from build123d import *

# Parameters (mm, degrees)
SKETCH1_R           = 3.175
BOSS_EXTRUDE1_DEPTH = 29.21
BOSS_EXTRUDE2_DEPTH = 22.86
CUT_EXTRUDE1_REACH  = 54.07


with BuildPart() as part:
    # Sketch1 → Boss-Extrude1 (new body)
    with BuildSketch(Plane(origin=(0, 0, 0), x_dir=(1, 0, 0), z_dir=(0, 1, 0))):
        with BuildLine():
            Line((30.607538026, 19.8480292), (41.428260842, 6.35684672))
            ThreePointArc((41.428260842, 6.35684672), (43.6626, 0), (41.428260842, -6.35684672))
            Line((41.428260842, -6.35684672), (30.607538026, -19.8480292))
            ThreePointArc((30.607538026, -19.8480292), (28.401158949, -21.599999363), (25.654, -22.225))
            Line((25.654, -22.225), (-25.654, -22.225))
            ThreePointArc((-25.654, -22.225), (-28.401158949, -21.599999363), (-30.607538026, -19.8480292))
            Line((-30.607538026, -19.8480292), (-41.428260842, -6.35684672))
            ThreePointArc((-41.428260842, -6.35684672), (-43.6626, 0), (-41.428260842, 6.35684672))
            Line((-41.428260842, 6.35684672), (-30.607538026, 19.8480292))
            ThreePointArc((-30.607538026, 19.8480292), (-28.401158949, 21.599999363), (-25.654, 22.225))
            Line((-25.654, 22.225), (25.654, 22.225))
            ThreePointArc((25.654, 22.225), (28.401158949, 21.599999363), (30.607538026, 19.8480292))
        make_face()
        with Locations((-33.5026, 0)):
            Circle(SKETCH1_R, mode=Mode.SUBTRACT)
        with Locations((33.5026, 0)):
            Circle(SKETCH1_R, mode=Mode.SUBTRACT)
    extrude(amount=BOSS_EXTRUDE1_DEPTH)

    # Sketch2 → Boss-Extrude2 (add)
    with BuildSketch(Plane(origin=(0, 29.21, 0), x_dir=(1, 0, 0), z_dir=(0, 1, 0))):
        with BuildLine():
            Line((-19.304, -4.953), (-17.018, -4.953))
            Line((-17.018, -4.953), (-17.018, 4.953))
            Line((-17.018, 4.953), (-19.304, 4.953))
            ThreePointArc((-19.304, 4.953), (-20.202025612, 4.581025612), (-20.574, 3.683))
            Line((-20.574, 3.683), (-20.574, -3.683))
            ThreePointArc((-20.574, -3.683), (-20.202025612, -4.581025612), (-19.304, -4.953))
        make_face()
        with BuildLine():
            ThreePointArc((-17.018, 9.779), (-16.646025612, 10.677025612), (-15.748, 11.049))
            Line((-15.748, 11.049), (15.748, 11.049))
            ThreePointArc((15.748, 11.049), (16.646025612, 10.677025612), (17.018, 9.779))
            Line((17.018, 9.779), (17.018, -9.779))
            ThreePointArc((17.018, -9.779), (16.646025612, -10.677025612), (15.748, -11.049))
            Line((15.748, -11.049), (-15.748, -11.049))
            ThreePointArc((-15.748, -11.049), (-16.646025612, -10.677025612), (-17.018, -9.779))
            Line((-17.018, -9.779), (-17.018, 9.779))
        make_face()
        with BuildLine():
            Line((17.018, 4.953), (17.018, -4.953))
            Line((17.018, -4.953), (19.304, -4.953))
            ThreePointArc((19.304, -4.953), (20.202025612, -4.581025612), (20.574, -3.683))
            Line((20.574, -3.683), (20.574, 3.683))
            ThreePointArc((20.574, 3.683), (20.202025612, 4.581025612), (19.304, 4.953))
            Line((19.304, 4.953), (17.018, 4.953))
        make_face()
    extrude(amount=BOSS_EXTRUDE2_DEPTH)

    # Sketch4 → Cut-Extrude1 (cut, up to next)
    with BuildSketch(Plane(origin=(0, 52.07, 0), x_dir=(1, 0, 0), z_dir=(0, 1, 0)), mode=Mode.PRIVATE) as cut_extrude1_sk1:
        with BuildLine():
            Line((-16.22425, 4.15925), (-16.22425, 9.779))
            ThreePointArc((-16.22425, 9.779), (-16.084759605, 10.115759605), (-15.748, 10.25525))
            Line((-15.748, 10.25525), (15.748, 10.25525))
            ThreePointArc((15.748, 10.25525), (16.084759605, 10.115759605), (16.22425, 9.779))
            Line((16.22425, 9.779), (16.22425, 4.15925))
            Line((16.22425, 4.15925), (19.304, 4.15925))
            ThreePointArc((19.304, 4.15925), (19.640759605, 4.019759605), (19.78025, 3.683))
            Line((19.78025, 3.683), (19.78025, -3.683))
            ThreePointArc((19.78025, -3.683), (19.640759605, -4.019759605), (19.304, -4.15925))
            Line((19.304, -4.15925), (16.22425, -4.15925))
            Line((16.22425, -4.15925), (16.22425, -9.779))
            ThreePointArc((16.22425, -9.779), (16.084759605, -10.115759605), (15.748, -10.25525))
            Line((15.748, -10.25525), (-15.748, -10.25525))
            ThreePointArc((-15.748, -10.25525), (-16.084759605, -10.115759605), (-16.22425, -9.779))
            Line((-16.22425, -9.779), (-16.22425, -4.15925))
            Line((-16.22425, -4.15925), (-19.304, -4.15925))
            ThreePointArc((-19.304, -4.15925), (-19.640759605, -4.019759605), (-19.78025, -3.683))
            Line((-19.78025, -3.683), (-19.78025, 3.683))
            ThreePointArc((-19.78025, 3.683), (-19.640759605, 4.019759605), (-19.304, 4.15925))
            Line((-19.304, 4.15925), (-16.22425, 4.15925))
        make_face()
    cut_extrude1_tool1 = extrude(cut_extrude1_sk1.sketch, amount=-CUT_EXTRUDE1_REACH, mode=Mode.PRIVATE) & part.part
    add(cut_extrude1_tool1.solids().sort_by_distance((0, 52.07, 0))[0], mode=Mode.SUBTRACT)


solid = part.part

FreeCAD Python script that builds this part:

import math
import FreeCAD as App
import Part
import Sketcher
Q = App.Units.Quantity

doc = App.newDocument("Part")
body = doc.addObject("PartDesign::Body", "Body")

# Sketch on XZ plane
sketch1 = body.newObject("Sketcher::SketchObject", "Sketch")
sketch1.AttachmentSupport = (doc.getObject("XZ_Plane"), [""])
sketch1.MapMode = "FlatFace"
sketch1.addGeometry(Part.LineSegment(App.Vector(41.428261, -6.356847, 0), App.Vector(30.607538, -19.848029, 0)), False)
sketch1.addGeometry(Part.ArcOfCircle(Part.Circle(App.Vector(25.654, -15.875, 0), App.Vector(0, 0, 1), 6.35), math.radians(-90), math.radians(-38.731666)), False)
sketch1.addGeometry(Part.LineSegment(App.Vector(25.654, -22.225, 0), App.Vector(-25.654, -22.225, 0)), False)
sketch1.addGeometry(Part.ArcOfCircle(Part.Circle(App.Vector(-25.654, -15.875, 0), App.Vector(0, 0, 1), 6.35), math.radians(-141.268334), math.radians(-90)), False)
sketch1.addGeometry(Part.LineSegment(App.Vector(-30.607538, -19.848029, 0), App.Vector(-41.428261, -6.356847, 0)), False)
sketch1.addGeometry(Part.ArcOfCircle(Part.Circle(App.Vector(-33.5026, 0, 0), App.Vector(0, 0, 1), 10.16), math.radians(141.268334), math.radians(218.731666)), False)
sketch1.addGeometry(Part.LineSegment(App.Vector(-41.428261, 6.356847, 0), App.Vector(-30.607538, 19.848029, 0)), False)
sketch1.addGeometry(Part.ArcOfCircle(Part.Circle(App.Vector(-25.654, 15.875, 0), App.Vector(0, 0, 1), 6.35), math.radians(90), math.radians(141.268334)), False)
sketch1.addGeometry(Part.LineSegment(App.Vector(-25.654, 22.225, 0), App.Vector(25.654, 22.225, 0)), False)
sketch1.addGeometry(Part.ArcOfCircle(Part.Circle(App.Vector(25.654, 15.875, 0), App.Vector(0, 0, 1), 6.35), math.radians(38.731666), math.radians(90)), False)
sketch1.addGeometry(Part.LineSegment(App.Vector(30.607538, 19.848029, 0), App.Vector(41.428261, 6.356847, 0)), False)
sketch1.addGeometry(Part.ArcOfCircle(Part.Circle(App.Vector(33.5026, 0, 0), App.Vector(0, 0, 1), 10.16), math.radians(-38.731666), math.radians(38.731666)), False)
sketch1.addGeometry(Part.Circle(App.Vector(33.5026, 0, 0), App.Vector(0, 0, 1), 3.175), False)
sketch1.addGeometry(Part.Circle(App.Vector(-33.5026, 0, 0), App.Vector(0, 0, 1), 3.175), False)
sketch1.addConstraint(Sketcher.Constraint("Tangent", 0, 2, 1, 2))
sketch1.addConstraint(Sketcher.Constraint("Tangent", 1, 1, 2, 1))
sketch1.addConstraint(Sketcher.Constraint("Tangent", 2, 2, 3, 2))
sketch1.addConstraint(Sketcher.Constraint("Tangent", 3, 1, 4, 1))
sketch1.addConstraint(Sketcher.Constraint("Tangent", 4, 2, 5, 2))
sketch1.addConstraint(Sketcher.Constraint("Tangent", 5, 1, 6, 1))
sketch1.addConstraint(Sketcher.Constraint("Tangent", 6, 2, 7, 2))
sketch1.addConstraint(Sketcher.Constraint("Tangent", 7, 1, 8, 1))
sketch1.addConstraint(Sketcher.Constraint("Tangent", 8, 2, 9, 2))
sketch1.addConstraint(Sketcher.Constraint("Tangent", 9, 1, 10, 1))
sketch1.addConstraint(Sketcher.Constraint("Tangent", 10, 2, 11, 2))
sketch1.addConstraint(Sketcher.Constraint("Tangent", 11, 1, 0, 1))
sketch1.addConstraint(Sketcher.Constraint("Horizontal", 2))
sketch1.addConstraint(Sketcher.Constraint("Horizontal", 8))
sketch1.addConstraint(Sketcher.Constraint("Coincident", 12, 3, 11, 3))
sketch1.addConstraint(Sketcher.Constraint("Coincident", 13, 3, 5, 3))
sketch1.addConstraint(Sketcher.Constraint("Equal", 1, 3))
sketch1.addConstraint(Sketcher.Constraint("Equal", 3, 7))
sketch1.addConstraint(Sketcher.Constraint("Equal", 7, 9))
sketch1.addConstraint(Sketcher.Constraint("Equal", 5, 11))
sketch1.addConstraint(Sketcher.Constraint("Equal", 12, 13))
sketch1.addConstraint(Sketcher.Constraint("Symmetric", 1, 3, 7, 3, -1, 1))
sketch1.addConstraint(Sketcher.Constraint("Symmetric", 5, 3, 11, 3, -1, 1))
sketch1.addConstraint(Sketcher.Constraint("Symmetric", 0, 2, 3, 1, -2))
sketch1.addConstraint(Sketcher.Constraint("Parallel", 4, 10))
sketch1.addConstraint(Sketcher.Constraint("Radius", 5, Q("0.4 in")))
sketch1.addConstraint(Sketcher.Constraint("Diameter", 12, Q("0.25 in")))
sketch1.addConstraint(Sketcher.Constraint("Radius", 1, Q("0.25 in")))
sketch1.addConstraint(Sketcher.Constraint("DistanceX", 2, 2, 2, 1, Q("2.02 in")))
sketch1.addConstraint(Sketcher.Constraint("DistanceY", 1, 1, 9, 3, Q("1.5 in")))
sketch1.addConstraint(Sketcher.Constraint("DistanceX", 5, 3, -1, 1, Q("1.319 in")))
pad1 = body.newObject("PartDesign::Pad", "Pad")
pad1.Profile = sketch1
pad1.Length = Q("1.15 in")
pad1.Reversed = True

# Sketch on XZ plane
sketch2 = body.newObject("Sketcher::SketchObject", "Sketch001")
sketch2.AttachmentSupport = (doc.getObject("XZ_Plane"), [""])
sketch2.MapMode = "FlatFace"
sketch2.AttachmentOffset = App.Placement(App.Vector(0, 0, -1.15 * 25.4), App.Rotation())
sketch2.addGeometry(Part.LineSegment(App.Vector(-19.304, 4.953, 0), App.Vector(-17.018, 4.953, 0)), False)
sketch2.addGeometry(Part.LineSegment(App.Vector(-17.018, 4.953, 0), App.Vector(-17.018, 9.779, 0)), False)
sketch2.addGeometry(Part.ArcOfCircle(Part.Circle(App.Vector(-15.748, 9.779, 0), App.Vector(0, 0, 1), 1.27), math.radians(90), math.radians(180)), False)
sketch2.addGeometry(Part.LineSegment(App.Vector(-15.748, 11.049, 0), App.Vector(15.748, 11.049, 0)), False)
sketch2.addGeometry(Part.ArcOfCircle(Part.Circle(App.Vector(15.748, 9.779, 0), App.Vector(0, 0, 1), 1.27), math.radians(0), math.radians(90)), False)
sketch2.addGeometry(Part.LineSegment(App.Vector(17.018, 9.779, 0), App.Vector(17.018, 4.953, 0)), False)
sketch2.addGeometry(Part.LineSegment(App.Vector(17.018, 4.953, 0), App.Vector(19.304, 4.953, 0)), False)
sketch2.addGeometry(Part.ArcOfCircle(Part.Circle(App.Vector(19.304, 3.683, 0), App.Vector(0, 0, 1), 1.27), math.radians(0), math.radians(90)), False)
sketch2.addGeometry(Part.LineSegment(App.Vector(20.574, 3.683, 0), App.Vector(20.574, -3.683, 0)), False)
sketch2.addGeometry(Part.ArcOfCircle(Part.Circle(App.Vector(19.304, -3.683, 0), App.Vector(0, 0, 1), 1.27), math.radians(-90), math.radians(0)), False)
sketch2.addGeometry(Part.LineSegment(App.Vector(19.304, -4.953, 0), App.Vector(17.018, -4.953, 0)), False)
sketch2.addGeometry(Part.LineSegment(App.Vector(17.018, -4.953, 0), App.Vector(17.018, -9.779, 0)), False)
sketch2.addGeometry(Part.ArcOfCircle(Part.Circle(App.Vector(15.748, -9.779, 0), App.Vector(0, 0, 1), 1.27), math.radians(-90), math.radians(0)), False)
sketch2.addGeometry(Part.LineSegment(App.Vector(15.748, -11.049, 0), App.Vector(-15.748, -11.049, 0)), False)
sketch2.addGeometry(Part.ArcOfCircle(Part.Circle(App.Vector(-15.748, -9.779, 0), App.Vector(0, 0, 1), 1.27), math.radians(180), math.radians(270)), False)
sketch2.addGeometry(Part.LineSegment(App.Vector(-17.018, -9.779, 0), App.Vector(-17.018, -4.953, 0)), False)
sketch2.addGeometry(Part.LineSegment(App.Vector(-17.018, -4.953, 0), App.Vector(-19.304, -4.953, 0)), False)
sketch2.addGeometry(Part.ArcOfCircle(Part.Circle(App.Vector(-19.304, -3.683, 0), App.Vector(0, 0, 1), 1.27), math.radians(180), math.radians(270)), False)
sketch2.addGeometry(Part.LineSegment(App.Vector(-20.574, -3.683, 0), App.Vector(-20.574, 3.683, 0)), False)
sketch2.addGeometry(Part.ArcOfCircle(Part.Circle(App.Vector(-19.304, 3.683, 0), App.Vector(0, 0, 1), 1.27), math.radians(90), math.radians(180)), False)
sketch2.addConstraint(Sketcher.Constraint("Coincident", 0, 2, 1, 1))
sketch2.addConstraint(Sketcher.Constraint("Tangent", 1, 2, 2, 2))
sketch2.addConstraint(Sketcher.Constraint("Tangent", 2, 1, 3, 1))
sketch2.addConstraint(Sketcher.Constraint("Tangent", 3, 2, 4, 2))
sketch2.addConstraint(Sketcher.Constraint("Tangent", 4, 1, 5, 1))
sketch2.addConstraint(Sketcher.Constraint("Coincident", 5, 2, 6, 1))
sketch2.addConstraint(Sketcher.Constraint("Tangent", 6, 2, 7, 2))
sketch2.addConstraint(Sketcher.Constraint("Tangent", 7, 1, 8, 1))
sketch2.addConstraint(Sketcher.Constraint("Tangent", 8, 2, 9, 2))
sketch2.addConstraint(Sketcher.Constraint("Tangent", 9, 1, 10, 1))
sketch2.addConstraint(Sketcher.Constraint("Coincident", 10, 2, 11, 1))
sketch2.addConstraint(Sketcher.Constraint("Tangent", 11, 2, 12, 2))
sketch2.addConstraint(Sketcher.Constraint("Tangent", 12, 1, 13, 1))
sketch2.addConstraint(Sketcher.Constraint("Tangent", 13, 2, 14, 2))
sketch2.addConstraint(Sketcher.Constraint("Tangent", 14, 1, 15, 1))
sketch2.addConstraint(Sketcher.Constraint("Coincident", 15, 2, 16, 1))
sketch2.addConstraint(Sketcher.Constraint("Tangent", 16, 2, 17, 2))
sketch2.addConstraint(Sketcher.Constraint("Tangent", 17, 1, 18, 1))
sketch2.addConstraint(Sketcher.Constraint("Tangent", 18, 2, 19, 2))
sketch2.addConstraint(Sketcher.Constraint("Tangent", 19, 1, 0, 1))
sketch2.addConstraint(Sketcher.Constraint("Horizontal", 0))
sketch2.addConstraint(Sketcher.Constraint("Vertical", 1))
sketch2.addConstraint(Sketcher.Constraint("Horizontal", 3))
sketch2.addConstraint(Sketcher.Constraint("Vertical", 5))
sketch2.addConstraint(Sketcher.Constraint("Horizontal", 6))
sketch2.addConstraint(Sketcher.Constraint("Vertical", 8))
sketch2.addConstraint(Sketcher.Constraint("Horizontal", 10))
sketch2.addConstraint(Sketcher.Constraint("Vertical", 11))
sketch2.addConstraint(Sketcher.Constraint("Horizontal", 13))
sketch2.addConstraint(Sketcher.Constraint("Vertical", 15))
sketch2.addConstraint(Sketcher.Constraint("Horizontal", 16))
sketch2.addConstraint(Sketcher.Constraint("Vertical", 18))
sketch2.addConstraint(Sketcher.Constraint("Equal", 2, 4))
sketch2.addConstraint(Sketcher.Constraint("Equal", 4, 7))
sketch2.addConstraint(Sketcher.Constraint("Equal", 7, 9))
sketch2.addConstraint(Sketcher.Constraint("Equal", 9, 12))
sketch2.addConstraint(Sketcher.Constraint("Equal", 12, 14))
sketch2.addConstraint(Sketcher.Constraint("Equal", 14, 17))
sketch2.addConstraint(Sketcher.Constraint("Equal", 17, 19))
sketch2.addConstraint(Sketcher.Constraint("Symmetric", 2, 3, 12, 3, -1, 1))
sketch2.addConstraint(Sketcher.Constraint("Symmetric", 7, 3, 17, 3, -1, 1))
sketch2.addConstraint(Sketcher.Constraint("Symmetric", 0, 2, 5, 2, -2))
sketch2.addConstraint(Sketcher.Constraint("Symmetric", 10, 2, 15, 2, -2))
sketch2.addConstraint(Sketcher.Constraint("Radius", 2, Q("0.05 in")))
sketch2.addConstraint(Sketcher.Constraint("DistanceX", 0, 1, 0, 2, Q("0.09 in")))
sketch2.addConstraint(Sketcher.Constraint("DistanceX", 3, 1, 3, 2, Q("1.24 in")))
sketch2.addConstraint(Sketcher.Constraint("DistanceY", 1, 1, 1, 2, Q("0.19 in")))
sketch2.addConstraint(Sketcher.Constraint("DistanceY", 8, 2, 8, 1, Q("0.29 in")))
pad2 = body.newObject("PartDesign::Pad", "Pad001")
pad2.Profile = sketch2
pad2.Length = Q("0.9 in")
pad2.Reversed = True

# Sketch on XZ plane
sketch3 = body.newObject("Sketcher::SketchObject", "Sketch002")
sketch3.AttachmentSupport = (doc.getObject("XZ_Plane"), [""])
sketch3.MapMode = "FlatFace"
sketch3.AttachmentOffset = App.Placement(App.Vector(0, 0, -2.05 * 25.4), App.Rotation())
sketch3.addGeometry(Part.LineSegment(App.Vector(-16.22425, -9.779, 0), App.Vector(-16.22425, -4.15925, 0)), False)
sketch3.addGeometry(Part.LineSegment(App.Vector(-16.22425, -4.15925, 0), App.Vector(-19.304, -4.15925, 0)), False)
sketch3.addGeometry(Part.ArcOfCircle(Part.Circle(App.Vector(-19.304, -3.683, 0), App.Vector(0, 0, 1), 0.47625), math.radians(180), math.radians(270)), False)
sketch3.addGeometry(Part.LineSegment(App.Vector(-19.78025, -3.683, 0), App.Vector(-19.78025, 3.683, 0)), False)
sketch3.addGeometry(Part.ArcOfCircle(Part.Circle(App.Vector(-19.304, 3.683, 0), App.Vector(0, 0, 1), 0.47625), math.radians(90), math.radians(180)), False)
sketch3.addGeometry(Part.LineSegment(App.Vector(-19.304, 4.15925, 0), App.Vector(-16.22425, 4.15925, 0)), False)
sketch3.addGeometry(Part.LineSegment(App.Vector(-16.22425, 4.15925, 0), App.Vector(-16.22425, 9.779, 0)), False)
sketch3.addGeometry(Part.ArcOfCircle(Part.Circle(App.Vector(-15.748, 9.779, 0), App.Vector(0, 0, 1), 0.47625), math.radians(90), math.radians(180)), False)
sketch3.addGeometry(Part.LineSegment(App.Vector(-15.748, 10.25525, 0), App.Vector(15.748, 10.25525, 0)), False)
sketch3.addGeometry(Part.ArcOfCircle(Part.Circle(App.Vector(15.748, 9.779, 0), App.Vector(0, 0, 1), 0.47625), math.radians(0), math.radians(90)), False)
sketch3.addGeometry(Part.LineSegment(App.Vector(16.22425, 9.779, 0), App.Vector(16.22425, 4.15925, 0)), False)
sketch3.addGeometry(Part.LineSegment(App.Vector(16.22425, 4.15925, 0), App.Vector(19.304, 4.15925, 0)), False)
sketch3.addGeometry(Part.ArcOfCircle(Part.Circle(App.Vector(19.304, 3.683, 0), App.Vector(0, 0, 1), 0.47625), math.radians(0), math.radians(90)), False)
sketch3.addGeometry(Part.LineSegment(App.Vector(19.78025, 3.683, 0), App.Vector(19.78025, -3.683, 0)), False)
sketch3.addGeometry(Part.ArcOfCircle(Part.Circle(App.Vector(19.304, -3.683, 0), App.Vector(0, 0, 1), 0.47625), math.radians(-90), math.radians(0)), False)
sketch3.addGeometry(Part.LineSegment(App.Vector(19.304, -4.15925, 0), App.Vector(16.22425, -4.15925, 0)), False)
sketch3.addGeometry(Part.LineSegment(App.Vector(16.22425, -4.15925, 0), App.Vector(16.22425, -9.779, 0)), False)
sketch3.addGeometry(Part.ArcOfCircle(Part.Circle(App.Vector(15.748, -9.779, 0), App.Vector(0, 0, 1), 0.47625), math.radians(-90), math.radians(0)), False)
sketch3.addGeometry(Part.LineSegment(App.Vector(15.748, -10.25525, 0), App.Vector(-15.748, -10.25525, 0)), False)
sketch3.addGeometry(Part.ArcOfCircle(Part.Circle(App.Vector(-15.748, -9.779, 0), App.Vector(0, 0, 1), 0.47625), math.radians(180), math.radians(270)), False)
sketch3.addConstraint(Sketcher.Constraint("Coincident", 0, 2, 1, 1))
sketch3.addConstraint(Sketcher.Constraint("Tangent", 1, 2, 2, 2))
sketch3.addConstraint(Sketcher.Constraint("Tangent", 2, 1, 3, 1))
sketch3.addConstraint(Sketcher.Constraint("Tangent", 3, 2, 4, 2))
sketch3.addConstraint(Sketcher.Constraint("Tangent", 4, 1, 5, 1))
sketch3.addConstraint(Sketcher.Constraint("Coincident", 5, 2, 6, 1))
sketch3.addConstraint(Sketcher.Constraint("Tangent", 6, 2, 7, 2))
sketch3.addConstraint(Sketcher.Constraint("Tangent", 7, 1, 8, 1))
sketch3.addConstraint(Sketcher.Constraint("Tangent", 8, 2, 9, 2))
sketch3.addConstraint(Sketcher.Constraint("Tangent", 9, 1, 10, 1))
sketch3.addConstraint(Sketcher.Constraint("Coincident", 10, 2, 11, 1))
sketch3.addConstraint(Sketcher.Constraint("Tangent", 11, 2, 12, 2))
sketch3.addConstraint(Sketcher.Constraint("Tangent", 12, 1, 13, 1))
sketch3.addConstraint(Sketcher.Constraint("Tangent", 13, 2, 14, 2))
sketch3.addConstraint(Sketcher.Constraint("Tangent", 14, 1, 15, 1))
sketch3.addConstraint(Sketcher.Constraint("Coincident", 15, 2, 16, 1))
sketch3.addConstraint(Sketcher.Constraint("Tangent", 16, 2, 17, 2))
sketch3.addConstraint(Sketcher.Constraint("Tangent", 17, 1, 18, 1))
sketch3.addConstraint(Sketcher.Constraint("Tangent", 18, 2, 19, 2))
sketch3.addConstraint(Sketcher.Constraint("Tangent", 19, 1, 0, 1))
sketch3.addConstraint(Sketcher.Constraint("Vertical", 0))
sketch3.addConstraint(Sketcher.Constraint("Horizontal", 1))
sketch3.addConstraint(Sketcher.Constraint("Vertical", 3))
sketch3.addConstraint(Sketcher.Constraint("Horizontal", 5))
sketch3.addConstraint(Sketcher.Constraint("Vertical", 6))
sketch3.addConstraint(Sketcher.Constraint("Horizontal", 8))
sketch3.addConstraint(Sketcher.Constraint("Vertical", 10))
sketch3.addConstraint(Sketcher.Constraint("Horizontal", 11))
sketch3.addConstraint(Sketcher.Constraint("Vertical", 13))
sketch3.addConstraint(Sketcher.Constraint("Horizontal", 15))
sketch3.addConstraint(Sketcher.Constraint("Vertical", 16))
sketch3.addConstraint(Sketcher.Constraint("Horizontal", 18))
sketch3.addConstraint(Sketcher.Constraint("Equal", 2, 4))
sketch3.addConstraint(Sketcher.Constraint("Equal", 4, 7))
sketch3.addConstraint(Sketcher.Constraint("Equal", 7, 9))
sketch3.addConstraint(Sketcher.Constraint("Equal", 9, 12))
sketch3.addConstraint(Sketcher.Constraint("Equal", 12, 14))
sketch3.addConstraint(Sketcher.Constraint("Equal", 14, 17))
sketch3.addConstraint(Sketcher.Constraint("Equal", 17, 19))
sketch3.addConstraint(Sketcher.Constraint("Symmetric", 2, 3, 12, 3, -1, 1))
sketch3.addConstraint(Sketcher.Constraint("Symmetric", 7, 3, 17, 3, -1, 1))
sketch3.addConstraint(Sketcher.Constraint("Symmetric", 5, 2, 10, 2, -2))
sketch3.addConstraint(Sketcher.Constraint("Symmetric", 0, 2, 15, 2, -2))
sketch3.addConstraint(Sketcher.Constraint("DistanceX", 8, 1, 8, 2, Q("1.24 in")))
sketch3.addConstraint(Sketcher.Constraint("DistanceY", 3, 1, 3, 2, Q("0.29 in")))
sketch3.addConstraint(Sketcher.Constraint("DistanceX", 2, 3, -1, 1, Q("0.76 in")))
sketch3.addConstraint(Sketcher.Constraint("DistanceY", 4, 3, 7, 3, Q("0.24 in")))
sketch3.addConstraint(Sketcher.Constraint("Radius", 2, 0.47625))
pocket1 = body.newObject("PartDesign::Pocket", "Pocket")
pocket1.Profile = sketch3
pocket1.Type = "UpToFirst"
pocket1.Reversed = True

doc.recompute()
